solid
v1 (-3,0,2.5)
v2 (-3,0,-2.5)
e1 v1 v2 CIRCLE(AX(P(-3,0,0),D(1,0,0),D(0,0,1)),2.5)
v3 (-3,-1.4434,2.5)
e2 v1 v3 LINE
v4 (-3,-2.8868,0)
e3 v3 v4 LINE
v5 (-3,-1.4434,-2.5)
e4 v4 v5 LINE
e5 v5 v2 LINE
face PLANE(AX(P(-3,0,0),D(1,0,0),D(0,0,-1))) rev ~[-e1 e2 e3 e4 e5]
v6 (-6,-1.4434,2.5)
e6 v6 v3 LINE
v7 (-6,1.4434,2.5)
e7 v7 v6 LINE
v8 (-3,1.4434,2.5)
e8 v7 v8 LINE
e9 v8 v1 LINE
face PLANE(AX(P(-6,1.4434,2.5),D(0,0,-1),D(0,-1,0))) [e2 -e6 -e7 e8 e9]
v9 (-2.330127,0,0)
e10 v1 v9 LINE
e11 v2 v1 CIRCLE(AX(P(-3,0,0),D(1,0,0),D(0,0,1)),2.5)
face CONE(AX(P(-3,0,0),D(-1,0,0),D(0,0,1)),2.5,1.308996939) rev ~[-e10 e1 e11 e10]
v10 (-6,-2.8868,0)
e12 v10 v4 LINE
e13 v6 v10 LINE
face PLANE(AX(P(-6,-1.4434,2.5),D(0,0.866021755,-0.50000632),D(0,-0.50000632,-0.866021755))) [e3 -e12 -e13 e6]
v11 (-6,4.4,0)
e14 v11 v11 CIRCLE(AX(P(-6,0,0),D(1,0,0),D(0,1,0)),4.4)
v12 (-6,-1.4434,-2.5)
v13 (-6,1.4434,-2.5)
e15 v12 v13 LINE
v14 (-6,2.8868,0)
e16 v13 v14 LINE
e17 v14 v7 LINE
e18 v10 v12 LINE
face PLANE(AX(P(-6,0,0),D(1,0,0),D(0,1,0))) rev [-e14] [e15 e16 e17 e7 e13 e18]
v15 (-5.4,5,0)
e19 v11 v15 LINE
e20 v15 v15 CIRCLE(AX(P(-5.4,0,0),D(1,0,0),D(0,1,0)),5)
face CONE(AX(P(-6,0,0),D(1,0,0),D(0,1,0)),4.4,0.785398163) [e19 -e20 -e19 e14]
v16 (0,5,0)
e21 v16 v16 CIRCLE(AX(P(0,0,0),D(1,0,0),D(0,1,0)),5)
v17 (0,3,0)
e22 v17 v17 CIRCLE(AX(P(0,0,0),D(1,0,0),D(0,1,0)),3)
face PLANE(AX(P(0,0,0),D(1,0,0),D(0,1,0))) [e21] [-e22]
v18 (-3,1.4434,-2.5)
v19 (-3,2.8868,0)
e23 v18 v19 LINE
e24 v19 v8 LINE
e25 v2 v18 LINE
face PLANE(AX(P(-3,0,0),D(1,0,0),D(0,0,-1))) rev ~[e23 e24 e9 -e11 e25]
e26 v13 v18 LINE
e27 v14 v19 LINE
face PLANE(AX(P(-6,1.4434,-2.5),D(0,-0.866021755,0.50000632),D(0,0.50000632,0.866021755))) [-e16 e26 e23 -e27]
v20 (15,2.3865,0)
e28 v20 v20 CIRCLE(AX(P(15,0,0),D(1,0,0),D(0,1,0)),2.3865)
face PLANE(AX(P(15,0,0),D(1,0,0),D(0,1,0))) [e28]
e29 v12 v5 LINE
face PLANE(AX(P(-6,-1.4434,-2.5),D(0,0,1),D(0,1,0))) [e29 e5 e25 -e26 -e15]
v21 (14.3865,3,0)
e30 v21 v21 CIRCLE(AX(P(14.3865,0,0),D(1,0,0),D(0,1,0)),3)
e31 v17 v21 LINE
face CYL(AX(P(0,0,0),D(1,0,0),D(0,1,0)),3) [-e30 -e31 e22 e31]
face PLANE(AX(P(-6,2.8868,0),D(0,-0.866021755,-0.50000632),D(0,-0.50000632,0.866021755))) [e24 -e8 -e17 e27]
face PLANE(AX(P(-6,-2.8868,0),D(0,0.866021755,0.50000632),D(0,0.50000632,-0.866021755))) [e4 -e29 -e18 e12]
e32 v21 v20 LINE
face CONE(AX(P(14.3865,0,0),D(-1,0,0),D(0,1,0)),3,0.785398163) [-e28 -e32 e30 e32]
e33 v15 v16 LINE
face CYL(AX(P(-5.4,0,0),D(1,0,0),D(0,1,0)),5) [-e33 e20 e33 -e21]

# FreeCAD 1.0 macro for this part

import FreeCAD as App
import Part
import Sketcher
from FreeCAD import Vector
Q = App.Units.Quantity

doc = App.newDocument("Part")
body = doc.addObject("PartDesign::Body", "Body")

# Sketch on XY plane
sketch1 = body.newObject("Sketcher::SketchObject", "Sketch")
sketch1.AttachmentSupport = (doc.getObject("XY_Plane"), [""])
sketch1.MapMode = "FlatFace"
sketch1.addGeometry(Part.LineSegment(Vector(-6, 0, 0), Vector(15, 0, 0)), False)
sketch1.addGeometry(Part.LineSegment(Vector(15, 0, 0), Vector(15, 2.4, 0)), False)
sketch1.addGeometry(Part.LineSegment(Vector(15, 2.4, 0), Vector(14.4, 3, 0)), False)
sketch1.addGeometry(Part.LineSegment(Vector(14.4, 3, 0), Vector(0, 3, 0)), False)
sketch1.addGeometry(Part.LineSegment(Vector(0, 3, 0), Vector(0, 5, 0)), False)
sketch1.addGeometry(Part.LineSegment(Vector(0, 5, 0), Vector(-5.4, 5, 0)), False)
sketch1.addGeometry(Part.LineSegment(Vector(-5.4, 5, 0), Vector(-6, 4.4, 0)), False)
sketch1.addGeometry(Part.LineSegment(Vector(-6, 4.4, 0), Vector(-6, 0, 0)), False)
sketch1.addConstraint(Sketcher.Constraint("Coincident", 0, 2, 1, 1))
sketch1.addConstraint(Sketcher.Constraint("Coincident", 1, 2, 2, 1))
sketch1.addConstraint(Sketcher.Constraint("Coincident", 2, 2, 3, 1))
sketch1.addConstraint(Sketcher.Constraint("Coincident", 3, 2, 4, 1))
sketch1.addConstraint(Sketcher.Constraint("Coincident", 4, 2, 5, 1))
sketch1.addConstraint(Sketcher.Constraint("Coincident", 5, 2, 6, 1))
sketch1.addConstraint(Sketcher.Constraint("Coincident", 6, 2, 7, 1))
sketch1.addConstraint(Sketcher.Constraint("Coincident", 7, 2, 0, 1))
sketch1.addConstraint(Sketcher.Constraint("Horizontal", 0))
sketch1.addConstraint(Sketcher.Constraint("Vertical", 1))
sketch1.addConstraint(Sketcher.Constraint("Horizontal", 3))
sketch1.addConstraint(Sketcher.Constraint("Vertical", 4))
sketch1.addConstraint(Sketcher.Constraint("Horizontal", 5))
sketch1.addConstraint(Sketcher.Constraint("Vertical", 7))
sketch1.addConstraint(Sketcher.Constraint("PointOnObject", 0, 2, -1))
sketch1.addConstraint(Sketcher.Constraint("PointOnObject", 3, 2, -2))
sketch1.addConstraint(Sketcher.Constraint("Perpendicular", 2, 6))
sketch1.addConstraint(Sketcher.Constraint("DistanceX", 0, 1, 0, 2, Q("21 mm")))
sketch1.addConstraint(Sketcher.Constraint("DistanceY", 4, 1, 4, 2, Q("2 mm")))
sketch1.addConstraint(Sketcher.Constraint("Angle", 2, Q("135 deg")))
sketch1.addConstraint(Sketcher.Constraint("DistanceX", 5, 2, 5, 1, Q("5.4 mm")))
sketch1.addConstraint(Sketcher.Constraint("DistanceY", 7, 2, 7, 1, Q("4.4 mm")))
sketch1.addConstraint(Sketcher.Constraint("DistanceX", -1, 1, 0, 2, Q("15 mm")))
sketch1.addConstraint(Sketcher.Constraint("DistanceX", 3, 2, 3, 1, Q("14.3865 mm")))
revolution = body.newObject("PartDesign::Revolution", "Revolution")
revolution.Profile = sketch1
revolution.ReferenceAxis = (sketch1, ["H_Axis"])
revolution.Angle = 360

# Sketch on YZ plane
sketch2 = body.newObject("Sketcher::SketchObject", "Sketch001")
sketch2.AttachmentSupport = (doc.getObject("YZ_Plane"), [""])
sketch2.MapMode = "FlatFace"
sketch2.AttachmentOffset = App.Placement(Vector(0, 0, -6), App.Rotation())
sketch2.addGeometry(Part.Circle(Vector(0, 0, 0), Vector(0, 0, 1), 2.5), False)
sketch2.addConstraint(Sketcher.Constraint("Coincident", 0, 3, -1, 1))
sketch2.addConstraint(Sketcher.Constraint("Diameter", 0, Q("5 mm")))
doc.recompute()
hole = body.newObject("PartDesign::Hole", "Hole")
hole.Profile = sketch2
hole.ThreadType = "None"
hole.Diameter = 5
hole.DepthType = "Dimension"
hole.Depth = 3
hole.DrillPoint = "Angled"
hole.DrillPointAngle = 150
hole.Reversed = True

# Sketch on YZ plane
sketch3 = body.newObject("Sketcher::SketchObject", "Sketch002")
sketch3.AttachmentSupport = (doc.getObject("YZ_Plane"), [""])
sketch3.MapMode = "FlatFace"
sketch3.AttachmentOffset = App.Placement(Vector(0, 0, -6), App.Rotation())
sketch3.addGeometry(Part.LineSegment(Vector(1.4, 2.5, 0), Vector(-1.4, 2.5, 0)), False)
sketch3.addGeometry(Part.LineSegment(Vector(-1.4, 2.5, 0), Vector(-2.9, 0, 0)), False)
sketch3.addGeometry(Part.LineSegment(Vector(-2.9, 0, 0), Vector(-1.4, -2.5, 0)), False)
sketch3.addGeometry(Part.LineSegment(Vector(-1.4, -2.5, 0), Vector(1.4, -2.5, 0)), False)
sketch3.addGeometry(Part.LineSegment(Vector(1.4, -2.5, 0), Vector(2.9, 0, 0)), False)
sketch3.addGeometry(Part.LineSegment(Vector(2.9, 0, 0), Vector(1.4, 2.5, 0)), False)
sketch3.addConstraint(Sketcher.Constraint("Coincident", 0, 2, 1, 1))
sketch3.addConstraint(Sketcher.Constraint("Coincident", 1, 2, 2, 1))
sketch3.addConstraint(Sketcher.Constraint("Coincident", 2, 2, 3, 1))
sketch3.addConstraint(Sketcher.Constraint("Coincident", 3, 2, 4, 1))
sketch3.addConstraint(Sketcher.Constraint("Coincident", 4, 2, 5, 1))
sketch3.addConstraint(Sketcher.Constraint("Coincident", 5, 2, 0, 1))
sketch3.addConstraint(Sketcher.Constraint("Horizontal", 0))
sketch3.addConstraint(Sketcher.Constraint("Horizontal", 3))
sketch3.addConstraint(Sketcher.Constraint("Symmetric", 0, 2, 3, 2, -1, 1))
sketch3.addConstraint(Sketcher.Constraint("Symmetric", 1, 2, 4, 2, -1, 1))
sketch3.addConstraint(Sketcher.Constraint("PointOnObject", 1, 2, -1))
sketch3.addConstraint(Sketcher.Constraint("Parallel", 2, 5))
sketch3.addConstraint(Sketcher.Constraint("Vertical", 0, 2, 2, 2))
sketch3.addConstraint(Sketcher.Constraint("Angle", 1, Q("-120.0004 deg")))
sketch3.addConstraint(Sketcher.Constraint("DistanceY", 2, 2, 0, 2, Q("5 mm")))
sketch3.addConstraint(Sketcher.Constraint("DistanceX", 0, 2, 0, 1, Q("2.8868 mm")))
pocket1 = body.newObject("PartDesign::Pocket", "Pocket")
pocket1.Profile = sketch3
pocket1.Length = 3
pocket1.Reversed = True

doc.recompute()
